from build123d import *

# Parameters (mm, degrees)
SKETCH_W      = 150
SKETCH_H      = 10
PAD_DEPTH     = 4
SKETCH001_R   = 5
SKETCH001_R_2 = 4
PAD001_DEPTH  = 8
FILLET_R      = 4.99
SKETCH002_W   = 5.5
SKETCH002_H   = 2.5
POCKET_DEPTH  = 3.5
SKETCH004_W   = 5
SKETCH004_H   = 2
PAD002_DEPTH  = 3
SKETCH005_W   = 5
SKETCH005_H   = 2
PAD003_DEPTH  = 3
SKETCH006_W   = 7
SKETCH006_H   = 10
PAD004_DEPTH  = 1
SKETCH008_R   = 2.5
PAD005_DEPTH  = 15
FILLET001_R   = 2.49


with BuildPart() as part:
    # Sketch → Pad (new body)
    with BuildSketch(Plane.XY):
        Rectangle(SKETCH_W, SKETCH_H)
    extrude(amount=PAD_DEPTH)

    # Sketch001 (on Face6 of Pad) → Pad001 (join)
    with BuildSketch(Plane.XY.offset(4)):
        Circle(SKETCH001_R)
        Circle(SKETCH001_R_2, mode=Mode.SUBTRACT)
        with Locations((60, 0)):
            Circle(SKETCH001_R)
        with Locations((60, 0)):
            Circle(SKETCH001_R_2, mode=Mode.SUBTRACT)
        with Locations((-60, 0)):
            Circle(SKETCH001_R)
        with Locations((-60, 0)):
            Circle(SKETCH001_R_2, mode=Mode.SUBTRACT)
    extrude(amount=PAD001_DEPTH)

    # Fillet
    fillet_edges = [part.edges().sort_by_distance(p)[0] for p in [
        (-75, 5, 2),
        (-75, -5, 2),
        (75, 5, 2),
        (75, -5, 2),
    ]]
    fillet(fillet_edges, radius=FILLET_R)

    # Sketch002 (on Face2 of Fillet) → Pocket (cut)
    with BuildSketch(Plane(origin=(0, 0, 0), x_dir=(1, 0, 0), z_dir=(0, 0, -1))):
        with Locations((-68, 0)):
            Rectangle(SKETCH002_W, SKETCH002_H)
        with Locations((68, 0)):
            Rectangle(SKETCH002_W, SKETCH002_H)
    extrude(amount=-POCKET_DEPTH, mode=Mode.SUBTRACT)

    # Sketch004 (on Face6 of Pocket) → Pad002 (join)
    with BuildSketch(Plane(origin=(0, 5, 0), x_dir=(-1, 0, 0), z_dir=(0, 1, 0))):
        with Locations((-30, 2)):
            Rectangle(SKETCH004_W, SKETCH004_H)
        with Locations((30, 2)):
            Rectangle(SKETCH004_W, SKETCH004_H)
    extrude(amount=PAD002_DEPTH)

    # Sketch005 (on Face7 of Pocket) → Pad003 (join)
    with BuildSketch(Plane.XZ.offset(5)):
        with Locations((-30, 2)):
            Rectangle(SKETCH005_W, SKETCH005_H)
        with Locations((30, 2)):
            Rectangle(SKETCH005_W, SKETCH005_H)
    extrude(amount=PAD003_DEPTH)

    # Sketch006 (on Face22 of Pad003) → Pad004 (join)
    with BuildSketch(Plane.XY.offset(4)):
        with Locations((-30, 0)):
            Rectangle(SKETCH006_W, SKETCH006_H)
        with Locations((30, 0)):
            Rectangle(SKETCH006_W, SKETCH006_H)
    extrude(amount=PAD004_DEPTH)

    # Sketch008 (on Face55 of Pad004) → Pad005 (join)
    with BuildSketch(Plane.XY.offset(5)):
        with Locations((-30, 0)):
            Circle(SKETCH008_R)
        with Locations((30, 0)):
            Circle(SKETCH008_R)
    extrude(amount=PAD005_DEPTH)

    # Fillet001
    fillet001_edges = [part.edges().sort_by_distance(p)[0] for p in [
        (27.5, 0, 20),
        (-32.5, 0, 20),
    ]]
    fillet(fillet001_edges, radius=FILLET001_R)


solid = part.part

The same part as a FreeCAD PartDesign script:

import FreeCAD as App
import Part
import Sketcher
Q = App.Units.Quantity


def edges_at(feature, points):
    """Names of the edges that pass closest to the given points."""
    edges = feature.Shape.Edges
    near = lambda p: min(range(len(edges)), key=lambda i: edges[i].distToShape(Part.Vertex(*p))[0])
    return sorted({f"Edge{near(p) + 1}" for p in points})

doc = App.newDocument("Part")
body = doc.addObject("PartDesign::Body", "Body")

# Sketch on XY plane
sketch1 = body.newObject("Sketcher::SketchObject", "Sketch")
sketch1.AttachmentSupport = (doc.getObject("XY_Plane"), [""])
sketch1.MapMode = "FlatFace"
sketch1.addGeometry([
    Part.LineSegment(App.Vector(-75, 5, 0), App.Vector(-75, -5, 0)),
    Part.LineSegment(App.Vector(-75, -5, 0), App.Vector(75, -5, 0)),
    Part.LineSegment(App.Vector(75, -5, 0), App.Vector(75, 5, 0)),
    Part.LineSegment(App.Vector(75, 5, 0), App.Vector(-75, 5, 0)),
], False)
sketch1.addConstraint([
    Sketcher.Constraint("Coincident", 0, 2, 1, 1),
    Sketcher.Constraint("Coincident", 1, 2, 2, 1),
    Sketcher.Constraint("Coincident", 2, 2, 3, 1),
    Sketcher.Constraint("Coincident", 3, 2, 0, 1),
    Sketcher.Constraint("Vertical", 0),
    Sketcher.Constraint("Horizontal", 1),
    Sketcher.Constraint("Vertical", 2),
    Sketcher.Constraint("Horizontal", 3),
    Sketcher.Constraint("Symmetric", 0, 2, 2, 2, -1, 1),
    Sketcher.Constraint("DistanceX", 1, 1, 1, 2, Q("150 mm")),
    Sketcher.Constraint("DistanceY", 0, 2, 0, 1, Q("10 mm")),
])
pad1 = body.newObject("PartDesign::Pad", "Pad")
pad1.Profile = sketch1
pad1.Length = 4

# Sketch on XY plane
sketch2 = body.newObject("Sketcher::SketchObject", "Sketch001")
sketch2.AttachmentSupport = (doc.getObject("XY_Plane"), [""])
sketch2.MapMode = "FlatFace"
sketch2.AttachmentOffset = App.Placement(App.Vector(0, 0, 4), App.Rotation())
sketch2.addGeometry([
    Part.Circle(App.Vector(0, 0, 0), App.Vector(0, 0, 1), 5),  # 0
    Part.Circle(App.Vector(0, 0, 0), App.Vector(0, 0, 1), 4),  # 1
    Part.Circle(App.Vector(60, 0, 0), App.Vector(0, 0, 1), 5),  # 2
    Part.Circle(App.Vector(60, 0, 0), App.Vector(0, 0, 1), 4),  # 3
    Part.Circle(App.Vector(-60, 0, 0), App.Vector(0, 0, 1), 5),  # 4
    Part.Circle(App.Vector(-60, 0, 0), App.Vector(0, 0, 1), 4),  # 5
], False)
sketch2.addConstraint([
    Sketcher.Constraint("Coincident", 0, 3, -1, 1),
    Sketcher.Constraint("Coincident", 1, 3, -1, 1),
    Sketcher.Constraint("Coincident", 3, 3, 2, 3),
    Sketcher.Constraint("Coincident", 5, 3, 4, 3),
    Sketcher.Constraint("Equal", 0, 2),
    Sketcher.Constraint("Equal", 1, 3),
    Sketcher.Constraint("Equal", 2, 4),
    Sketcher.Constraint("Equal", 3, 5),
    Sketcher.Constraint("Symmetric", 2, 3, 4, 3, -1, 1),
    Sketcher.Constraint("PointOnObject", 2, 3, -1),
    Sketcher.Constraint("Diameter", 0, Q("10 mm")),
    Sketcher.Constraint("Diameter", 1, Q("8 mm")),
    Sketcher.Constraint("DistanceX", -1, 1, 2, 3, Q("60 mm")),
])
pad2 = body.newObject("PartDesign::Pad", "Pad001")
pad2.Profile = sketch2
pad2.Length = 8
doc.recompute()

fillet = body.newObject("PartDesign::Fillet", "Fillet")
fillet.Base = (pad2, edges_at(pad2, [
    (-75, 5, 2),
    (-75, -5, 2),
    (75, 5, 2),
    (75, -5, 2),
]))
fillet.Radius = 4.99

# Sketch on XY plane
sketch3 = body.newObject("Sketcher::SketchObject", "Sketch002")
sketch3.AttachmentSupport = (doc.getObject("XY_Plane"), [""])
sketch3.MapMode = "FlatFace"
sketch3.addGeometry([
    Part.LineSegment(App.Vector(-70.75, -1.25, 0), App.Vector(-70.75, 1.25, 0)),  # 0
    Part.LineSegment(App.Vector(-70.75, 1.25, 0), App.Vector(-65.25, 1.25, 0)),  # 1
    Part.LineSegment(App.Vector(-65.25, 1.25, 0), App.Vector(-65.25, -1.25, 0)),  # 2
    Part.LineSegment(App.Vector(-65.25, -1.25, 0), App.Vector(-70.75, -1.25, 0)),  # 3
    Part.LineSegment(App.Vector(65.25, -1.25, 0), App.Vector(65.25, 1.25, 0)),  # 4
    Part.LineSegment(App.Vector(65.25, 1.25, 0), App.Vector(70.75, 1.25, 0)),  # 5
    Part.LineSegment(App.Vector(70.75, 1.25, 0), App.Vector(70.75, -1.25, 0)),  # 6
    Part.LineSegment(App.Vector(70.75, -1.25, 0), App.Vector(65.25, -1.25, 0)),  # 7
], False)
sketch3.addConstraint([
    Sketcher.Constraint("Coincident", 0, 2, 1, 1),
    Sketcher.Constraint("Coincident", 1, 2, 2, 1),
    Sketcher.Constraint("Coincident", 2, 2, 3, 1),
    Sketcher.Constraint("Coincident", 3, 2, 0, 1),
    Sketcher.Constraint("Coincident", 4, 2, 5, 1),
    Sketcher.Constraint("Coincident", 5, 2, 6, 1),
    Sketcher.Constraint("Coincident", 6, 2, 7, 1),
    Sketcher.Constraint("Coincident", 7, 2, 4, 1),
    Sketcher.Constraint("Vertical", 0),
    Sketcher.Constraint("Horizontal", 1),
    Sketcher.Constraint("Vertical", 2),
    Sketcher.Constraint("Horizontal", 3),
    Sketcher.Constraint("Vertical", 4),
    Sketcher.Constraint("Horizontal", 5),
    Sketcher.Constraint("Vertical", 6),
    Sketcher.Constraint("Horizontal", 7),
    Sketcher.Constraint("Symmetric", 2, 2, 4, 2, -1, 1),
    Sketcher.Constraint("Symmetric", 0, 2, 6, 2, -1, 1),
    Sketcher.Constraint("Horizontal", 1, 2, 4, 2),
    Sketcher.Constraint("DistanceX", 1, 1, 1, 2, Q("5.5 mm")),
    Sketcher.Constraint("DistanceY", 0, 1, 0, 2, Q("2.5 mm")),
    Sketcher.Constraint("DistanceX", 0, 2, 4, 2, Q("136 mm")),
])
pocket1 = body.newObject("PartDesign::Pocket", "Pocket")
pocket1.Profile = sketch3
pocket1.Length = 3.5
pocket1.Reversed = True

# Sketch on XZ plane
sketch4 = body.newObject("Sketcher::SketchObject", "Sketch003")
sketch4.AttachmentSupport = (doc.getObject("XZ_Plane"), [""])
sketch4.MapMode = "FlatFace"
sketch4.AttachmentOffset = App.Placement(App.Vector(0, 0, -5), App.Rotation())
sketch4.addGeometry([
    Part.LineSegment(App.Vector(32.5, 3, 0), App.Vector(32.5, 1, 0)),  # 0
    Part.LineSegment(App.Vector(32.5, 1, 0), App.Vector(27.5, 1, 0)),  # 1
    Part.LineSegment(App.Vector(27.5, 1, 0), App.Vector(27.5, 3, 0)),  # 2
    Part.LineSegment(App.Vector(27.5, 3, 0), App.Vector(32.5, 3, 0)),  # 3
    Part.LineSegment(App.Vector(-27.5, 3, 0), App.Vector(-27.5, 1, 0)),  # 4
    Part.LineSegment(App.Vector(-27.5, 1, 0), App.Vector(-32.5, 1, 0)),  # 5
    Part.LineSegment(App.Vector(-32.5, 1, 0), App.Vector(-32.5, 3, 0)),  # 6
    Part.LineSegment(App.Vector(-32.5, 3, 0), App.Vector(-27.5, 3, 0)),  # 7
], False)
sketch4.addConstraint([
    Sketcher.Constraint("Coincident", 0, 2, 1, 1),
    Sketcher.Constraint("Coincident", 1, 2, 2, 1),
    Sketcher.Constraint("Coincident", 2, 2, 3, 1),
    Sketcher.Constraint("Coincident", 3, 2, 0, 1),
    Sketcher.Constraint("Coincident", 4, 2, 5, 1),
    Sketcher.Constraint("Coincident", 5, 2, 6, 1),
    Sketcher.Constraint("Coincident", 6, 2, 7, 1),
    Sketcher.Constraint("Coincident", 7, 2, 4, 1),
    Sketcher.Constraint("Vertical", 0),
    Sketcher.Constraint("Horizontal", 1),
    Sketcher.Constraint("Vertical", 2),
    Sketcher.Constraint("Horizontal", 3),
    Sketcher.Constraint("Vertical", 4),
    Sketcher.Constraint("Horizontal", 5),
    Sketcher.Constraint("Vertical", 6),
    Sketcher.Constraint("Horizontal", 7),
    Sketcher.Constraint("Symmetric", 1, 2, 4, 2, -2),
    Sketcher.Constraint("Symmetric", 3, 2, 6, 2, -2),
    Sketcher.Constraint("DistanceX", 1, 2, 1, 1, Q("5 mm")),
    Sketcher.Constraint("DistanceY", 0, 2, 0, 1, Q("2 mm")),
    Sketcher.Constraint("DistanceY", -1, 1, 0, 2, Q("1 mm")),
    Sketcher.Constraint("DistanceX", 4, 2, 1, 2, Q("55 mm")),
])
pad3 = body.newObject("PartDesign::Pad", "Pad002")
pad3.Profile = sketch4
pad3.Length = 3
pad3.Reversed = True

# Sketch on XZ plane
sketch5 = body.newObject("Sketcher::SketchObject", "Sketch004")
sketch5.AttachmentSupport = (doc.getObject("XZ_Plane"), [""])
sketch5.MapMode = "FlatFace"
sketch5.AttachmentOffset = App.Placement(App.Vector(0, 0, 5), App.Rotation())
sketch5.addGeometry([
    Part.LineSegment(App.Vector(-32.5, 3, 0), App.Vector(-32.5, 1, 0)),  # 0
    Part.LineSegment(App.Vector(-32.5, 1, 0), App.Vector(-27.5, 1, 0)),  # 1
    Part.LineSegment(App.Vector(-27.5, 1, 0), App.Vector(-27.5, 3, 0)),  # 2
    Part.LineSegment(App.Vector(-27.5, 3, 0), App.Vector(-32.5, 3, 0)),  # 3
    Part.LineSegment(App.Vector(27.5, 3, 0), App.Vector(27.5, 1, 0)),  # 4
    Part.LineSegment(App.Vector(27.5, 1, 0), App.Vector(32.5, 1, 0)),  # 5
    Part.LineSegment(App.Vector(32.5, 1, 0), App.Vector(32.5, 3, 0)),  # 6
    Part.LineSegment(App.Vector(32.5, 3, 0), App.Vector(27.5, 3, 0)),  # 7
], False)
sketch5.addConstraint([
    Sketcher.Constraint("Coincident", 0, 2, 1, 1),
    Sketcher.Constraint("Coincident", 1, 2, 2, 1),
    Sketcher.Constraint("Coincident", 2, 2, 3, 1),
    Sketcher.Constraint("Coincident", 3, 2, 0, 1),
    Sketcher.Constraint("Coincident", 4, 2, 5, 1),
    Sketcher.Constraint("Coincident", 5, 2, 6, 1),
    Sketcher.Constraint("Coincident", 6, 2, 7, 1),
    Sketcher.Constraint("Coincident", 7, 2, 4, 1),
    Sketcher.Constraint("Vertical", 0),
    Sketcher.Constraint("Horizontal", 1),
    Sketcher.Constraint("Vertical", 2),
    Sketcher.Constraint("Horizontal", 3),
    Sketcher.Constraint("Vertical", 4),
    Sketcher.Constraint("Horizontal", 5),
    Sketcher.Constraint("Vertical", 6),
    Sketcher.Constraint("Horizontal", 7),
    Sketcher.Constraint("Symmetric", 1, 2, 4, 2, -2),
    Sketcher.Constraint("Symmetric", 3, 2, 6, 2, -2),
    Sketcher.Constraint("DistanceX", 1, 1, 1, 2, Q("5 mm")),
    Sketcher.Constraint("DistanceY", 0, 2, 0, 1, Q("2 mm")),
    Sketcher.Constraint("DistanceY", -1, 1, 0, 2, Q("1 mm")),
    Sketcher.Constraint("DistanceX", 1, 2, 4, 2, Q("55 mm")),
])
pad4 = body.newObject("PartDesign::Pad", "Pad003")
pad4.Profile = sketch5
pad4.Length = 3

# Sketch on XY plane
sketch6 = body.newObject("Sketcher::SketchObject", "Sketch005")
sketch6.AttachmentSupport = (doc.getObject("XY_Plane"), [""])
sketch6.MapMode = "FlatFace"
sketch6.AttachmentOffset = App.Placement(App.Vector(0, 0, 4), App.Rotation())
sketch6.addGeometry([
    Part.LineSegment(App.Vector(-33.5, 5, 0), App.Vector(-33.5, -5, 0)),  # 0
    Part.LineSegment(App.Vector(-33.5, -5, 0), App.Vector(-26.5, -5, 0)),  # 1
    Part.LineSegment(App.Vector(-26.5, -5, 0), App.Vector(-26.5, 5, 0)),  # 2
    Part.LineSegment(App.Vector(-26.5, 5, 0), App.Vector(-33.5, 5, 0)),  # 3
    Part.LineSegment(App.Vector(26.5, 5, 0), App.Vector(26.5, -5, 0)),  # 4
    Part.LineSegment(App.Vector(26.5, -5, 0), App.Vector(33.5, -5, 0)),  # 5
    Part.LineSegment(App.Vector(33.5, -5, 0), App.Vector(33.5, 5, 0)),  # 6
    Part.LineSegment(App.Vector(33.5, 5, 0), App.Vector(26.5, 5, 0)),  # 7
], False)
sketch6.addConstraint([
    Sketcher.Constraint("Coincident", 0, 2, 1, 1),
    Sketcher.Constraint("Coincident", 1, 2, 2, 1),
    Sketcher.Constraint("Coincident", 2, 2, 3, 1),
    Sketcher.Constraint("Coincident", 3, 2, 0, 1),
    Sketcher.Constraint("Coincident", 4, 2, 5, 1),
    Sketcher.Constraint("Coincident", 5, 2, 6, 1),
    Sketcher.Constraint("Coincident", 6, 2, 7, 1),
    Sketcher.Constraint("Coincident", 7, 2, 4, 1),
    Sketcher.Constraint("Vertical", 0),
    Sketcher.Constraint("Horizontal", 1),
    Sketcher.Constraint("Vertical", 2),
    Sketcher.Constraint("Horizontal", 3),
    Sketcher.Constraint("Vertical", 4),
    Sketcher.Constraint("Horizontal", 5),
    Sketcher.Constraint("Vertical", 6),
    Sketcher.Constraint("Horizontal", 7),
    Sketcher.Constraint("Symmetric", 2, 2, 4, 2, -1, 1),
    Sketcher.Constraint("Symmetric", 0, 2, 6, 2, -1, 1),
    Sketcher.Constraint("Horizontal", 1, 2, 4, 2),
    Sketcher.Constraint("DistanceX", 1, 1, 1, 2, Q("7 mm")),
    Sketcher.Constraint("DistanceY", 0, 2, 0, 1, Q("10 mm")),
    Sketcher.Constraint("DistanceX", 1, 2, 4, 2, Q("53 mm")),
])
pad5 = body.newObject("PartDesign::Pad", "Pad004")
pad5.Profile = sketch6
pad5.Length = 1

# Sketch on XY plane
sketch7 = body.newObject("Sketcher::SketchObject", "Sketch006")
sketch7.AttachmentSupport = (doc.getObject("XY_Plane"), [""])
sketch7.MapMode = "FlatFace"
sketch7.AttachmentOffset = App.Placement(App.Vector(0, 0, 5), App.Rotation())
sketch7.addGeometry([
    Part.Circle(App.Vector(-30, 0, 0), App.Vector(0, 0, 1), 2.5),
    Part.Circle(App.Vector(30, 0, 0), App.Vector(0, 0, 1), 2.5),
], False)
sketch7.addConstraint([
    Sketcher.Constraint("Equal", 0, 1),
    Sketcher.Constraint("Symmetric", 0, 3, 1, 3, -1, 1),
    Sketcher.Constraint("PointOnObject", 0, 3, -1),
    Sketcher.Constraint("Diameter", 0, Q("5 mm")),
    Sketcher.Constraint("DistanceX", 0, 3, -1, 1, Q("30 mm")),
])
pad6 = body.newObject("PartDesign::Pad", "Pad005")
pad6.Profile = sketch7
pad6.Length = 15
doc.recompute()

fillet2 = body.newObject("PartDesign::Fillet", "Fillet001")
fillet2.Base = (pad6, edges_at(pad6, [(27.5, 0, 20), (-32.5, 0, 20)]))
fillet2.Radius = 2.49

doc.recompute()
